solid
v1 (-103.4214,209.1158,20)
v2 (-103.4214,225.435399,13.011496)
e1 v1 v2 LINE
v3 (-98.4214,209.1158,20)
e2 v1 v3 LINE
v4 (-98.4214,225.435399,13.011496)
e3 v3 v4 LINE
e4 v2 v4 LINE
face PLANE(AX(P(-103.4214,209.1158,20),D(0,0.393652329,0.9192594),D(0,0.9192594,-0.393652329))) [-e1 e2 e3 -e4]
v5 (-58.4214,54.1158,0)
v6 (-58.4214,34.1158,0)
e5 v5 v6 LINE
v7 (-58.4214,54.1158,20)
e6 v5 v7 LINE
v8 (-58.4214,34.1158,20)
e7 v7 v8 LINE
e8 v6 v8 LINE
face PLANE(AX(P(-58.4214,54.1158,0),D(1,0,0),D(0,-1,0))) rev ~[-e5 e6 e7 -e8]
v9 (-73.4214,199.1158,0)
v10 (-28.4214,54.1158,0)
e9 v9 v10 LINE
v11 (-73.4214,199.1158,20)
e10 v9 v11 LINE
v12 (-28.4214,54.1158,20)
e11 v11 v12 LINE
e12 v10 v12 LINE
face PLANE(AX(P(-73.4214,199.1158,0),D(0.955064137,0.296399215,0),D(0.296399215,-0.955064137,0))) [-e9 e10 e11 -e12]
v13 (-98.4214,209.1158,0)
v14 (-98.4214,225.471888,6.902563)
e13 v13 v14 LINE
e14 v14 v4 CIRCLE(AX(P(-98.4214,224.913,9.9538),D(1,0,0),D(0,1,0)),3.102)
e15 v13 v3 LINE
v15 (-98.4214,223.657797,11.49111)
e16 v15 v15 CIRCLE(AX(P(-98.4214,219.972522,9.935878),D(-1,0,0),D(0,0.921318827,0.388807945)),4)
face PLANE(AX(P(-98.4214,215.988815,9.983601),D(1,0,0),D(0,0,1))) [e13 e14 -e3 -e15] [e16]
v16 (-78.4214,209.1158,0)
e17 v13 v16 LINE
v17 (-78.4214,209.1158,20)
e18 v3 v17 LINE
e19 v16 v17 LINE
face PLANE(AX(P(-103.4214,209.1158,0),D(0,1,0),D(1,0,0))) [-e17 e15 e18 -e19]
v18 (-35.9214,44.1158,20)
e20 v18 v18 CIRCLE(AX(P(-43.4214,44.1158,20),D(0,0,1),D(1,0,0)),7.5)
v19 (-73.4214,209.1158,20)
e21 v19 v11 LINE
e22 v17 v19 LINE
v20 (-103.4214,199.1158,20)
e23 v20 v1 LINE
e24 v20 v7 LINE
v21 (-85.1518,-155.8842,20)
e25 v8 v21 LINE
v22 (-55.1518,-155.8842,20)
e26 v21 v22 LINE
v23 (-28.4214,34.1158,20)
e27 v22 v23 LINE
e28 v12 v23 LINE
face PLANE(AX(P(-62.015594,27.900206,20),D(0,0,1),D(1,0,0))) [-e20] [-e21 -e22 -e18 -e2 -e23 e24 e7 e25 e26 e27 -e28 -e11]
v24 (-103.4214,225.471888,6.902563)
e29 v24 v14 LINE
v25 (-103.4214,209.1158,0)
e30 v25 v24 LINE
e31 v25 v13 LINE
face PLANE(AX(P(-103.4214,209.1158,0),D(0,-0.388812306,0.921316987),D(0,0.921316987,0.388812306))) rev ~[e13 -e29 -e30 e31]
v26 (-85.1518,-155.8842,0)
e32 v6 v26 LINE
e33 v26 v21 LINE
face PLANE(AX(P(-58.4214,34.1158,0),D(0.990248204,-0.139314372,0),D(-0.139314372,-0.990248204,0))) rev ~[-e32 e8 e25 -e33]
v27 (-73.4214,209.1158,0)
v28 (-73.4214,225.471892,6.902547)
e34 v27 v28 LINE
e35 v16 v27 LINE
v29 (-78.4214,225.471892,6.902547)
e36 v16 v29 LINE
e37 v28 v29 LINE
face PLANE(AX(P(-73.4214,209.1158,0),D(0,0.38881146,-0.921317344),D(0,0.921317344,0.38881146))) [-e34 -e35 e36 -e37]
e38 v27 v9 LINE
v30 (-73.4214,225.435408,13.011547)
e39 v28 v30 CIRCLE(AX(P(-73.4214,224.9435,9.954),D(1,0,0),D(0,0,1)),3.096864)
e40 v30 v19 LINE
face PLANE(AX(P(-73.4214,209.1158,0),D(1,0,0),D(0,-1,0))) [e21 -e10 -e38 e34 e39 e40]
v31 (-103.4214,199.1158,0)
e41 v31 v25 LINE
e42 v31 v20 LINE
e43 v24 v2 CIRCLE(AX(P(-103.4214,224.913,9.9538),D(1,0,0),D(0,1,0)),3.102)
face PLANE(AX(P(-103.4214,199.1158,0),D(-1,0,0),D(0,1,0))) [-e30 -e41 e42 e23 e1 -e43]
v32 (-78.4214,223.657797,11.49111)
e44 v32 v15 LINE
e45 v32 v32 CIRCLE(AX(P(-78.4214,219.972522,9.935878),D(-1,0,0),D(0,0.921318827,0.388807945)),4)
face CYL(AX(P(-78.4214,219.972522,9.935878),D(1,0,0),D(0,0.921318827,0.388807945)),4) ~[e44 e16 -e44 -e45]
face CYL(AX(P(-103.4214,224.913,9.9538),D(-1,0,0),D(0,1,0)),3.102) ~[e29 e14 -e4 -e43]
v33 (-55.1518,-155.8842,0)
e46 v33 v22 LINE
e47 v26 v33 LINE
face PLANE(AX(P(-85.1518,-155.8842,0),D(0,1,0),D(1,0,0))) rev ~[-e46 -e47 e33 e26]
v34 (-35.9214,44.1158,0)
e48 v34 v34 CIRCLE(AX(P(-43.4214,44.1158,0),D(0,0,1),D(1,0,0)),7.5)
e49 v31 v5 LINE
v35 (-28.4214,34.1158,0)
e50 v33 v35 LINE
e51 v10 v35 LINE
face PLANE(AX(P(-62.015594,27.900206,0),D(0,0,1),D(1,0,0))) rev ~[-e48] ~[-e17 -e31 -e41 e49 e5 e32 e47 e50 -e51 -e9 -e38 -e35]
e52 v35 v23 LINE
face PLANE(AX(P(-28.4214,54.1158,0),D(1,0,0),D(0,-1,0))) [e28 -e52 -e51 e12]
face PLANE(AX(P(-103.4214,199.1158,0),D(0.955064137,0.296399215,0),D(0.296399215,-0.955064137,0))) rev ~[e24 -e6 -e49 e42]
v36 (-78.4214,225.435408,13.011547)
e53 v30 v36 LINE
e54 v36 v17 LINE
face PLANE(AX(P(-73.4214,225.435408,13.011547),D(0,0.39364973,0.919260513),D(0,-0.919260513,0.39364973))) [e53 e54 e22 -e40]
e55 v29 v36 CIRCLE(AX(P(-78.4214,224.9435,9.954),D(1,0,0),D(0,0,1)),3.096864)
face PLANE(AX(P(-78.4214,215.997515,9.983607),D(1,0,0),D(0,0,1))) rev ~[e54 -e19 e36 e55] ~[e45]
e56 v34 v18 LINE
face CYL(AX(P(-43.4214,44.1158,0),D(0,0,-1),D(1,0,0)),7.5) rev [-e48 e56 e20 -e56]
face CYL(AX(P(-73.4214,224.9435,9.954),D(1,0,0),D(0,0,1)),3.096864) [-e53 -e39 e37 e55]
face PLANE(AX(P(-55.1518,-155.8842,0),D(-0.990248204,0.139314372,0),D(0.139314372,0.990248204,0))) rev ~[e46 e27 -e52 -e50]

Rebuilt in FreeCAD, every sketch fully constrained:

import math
import FreeCAD as App
import Part
import Sketcher

V = App.Vector
Q = App.Units.Quantity


def add_polygon(sketch, points):
    """Adds a closed chain of lines whose ends are joined by coincident constraints."""
    first, n = sketch.GeometryCount, len(points)
    for a, b in zip(points, points[1:] + points[:1]):
        sketch.addGeometry(Part.LineSegment(App.Vector(*a, 0), App.Vector(*b, 0)), False)
    for i in range(n):
        sketch.addConstraint(Sketcher.Constraint("Coincident", first + i, 2, first + (i + 1) % n, 1))

doc = App.newDocument("Part")
params = doc.addObject("Spreadsheet::Sheet", "Params")
for row, (alias, value) in enumerate([
    ("sketch1_diameter", "15 mm"),
    ("sketch1_width", "30 mm"),
    ("sketch1_height", "10 mm"),
    ("sketch1_height2", "20 mm"),
    ("pad1_length", "20 mm"),
    ("sketch2_height", "20 mm"),
    ("pad2_length", "5 mm"),
    ("sketch3_height", "20 mm"),
    ("pad3_length", "5 mm"),
    ("sketch4_diameter", "8 mm"),
    ("pad4_length", "20 mm"),
], start=1):
    params.set(f"A{row}", alias)
    params.set(f"B{row}", "=" + value)
    params.setAlias(f"B{row}", alias)

body = doc.addObject("PartDesign::Body", "Body")

# Sketch on XY plane
sketch1 = doc.addObject("Sketcher::SketchObject", "Sketch")
body.addObject(sketch1)
sketch1.AttachmentSupport = (doc.XY_Plane, [""])
sketch1.MapMode = "FlatFace"
add_polygon(sketch1, [(-103, 209), (-103, 199), (-58, 54), (-58, 34), (-85, -156), (-55, -156), (-28, 34), (-28, 54), (-73, 199), (-73, 209)])  # lines 0-9
sketch1.addGeometry(Part.Circle(V(-43, 44, 0), V(0, 0, 1), 8), False)  # 10
sketch1.addConstraint([
    Sketcher.Constraint("Vertical", 0),
    Sketcher.Constraint("Vertical", 2),
    Sketcher.Constraint("Horizontal", 4),
    Sketcher.Constraint("Vertical", 6),
    Sketcher.Constraint("Vertical", 8),
    Sketcher.Constraint("Horizontal", 9),
    Sketcher.Constraint("Parallel", 3, 5),
    Sketcher.Constraint("Parallel", 1, 7),
    Sketcher.Constraint("Horizontal", 2, 2, 5, 2),
    Sketcher.Constraint("Horizontal", 1, 2, 6, 2),
    Sketcher.Constraint("Horizontal", 0, 2, 7, 2),
    Sketcher.Constraint("Diameter", 10, Q("15 mm")),
    Sketcher.Constraint("DistanceX", 4, 1, 4, 2, Q("30 mm")),
    Sketcher.Constraint("DistanceY", 0, 2, 0, 1, Q("10 mm")),
    Sketcher.Constraint("DistanceY", 2, 2, 2, 1, Q("20 mm")),
    Sketcher.Constraint("DistanceX", 0, 2, 10, 3, Q("60 mm")),
    Sketcher.Constraint("DistanceY", 10, 3, 0, 2, Q("155 mm")),
    Sketcher.Constraint("DistanceX", 1, 2, 10, 3, Q("15 mm")),
    Sketcher.Constraint("DistanceY", 10, 3, 1, 2, Q("10 mm")),
    Sketcher.Constraint("DistanceY", 3, 2, 2, 2, Q("190 mm")),
    Sketcher.Constraint("DistanceX", 10, 3, -1, 1, Q("43.4214 mm")),
    Sketcher.Constraint("Distance", 3, Q("191.871 mm")),
    Sketcher.Constraint("DistanceY", -1, 1, 10, 3, Q("44.1158 mm")),
])
sketch1.setExpression("Constraints[21]", "Params.sketch1_diameter")
sketch1.setExpression("Constraints[22]", "Params.sketch1_width")
sketch1.setExpression("Constraints[23]", "Params.sketch1_height")
sketch1.setExpression("Constraints[24]", "Params.sketch1_height2")
pad1 = doc.addObject("PartDesign::Pad", "Pad")
body.addObject(pad1)
pad1.Profile = sketch1
pad1.setExpression("Length", "Params.pad1_length")

# Sketch on YZ plane
sketch2 = doc.addObject("Sketcher::SketchObject", "Sketch001")
body.addObject(sketch2)
sketch2.AttachmentSupport = (doc.YZ_Plane, [""])
sketch2.MapMode = "FlatFace"
sketch2.AttachmentOffset = App.Placement(V(0, 0, -73.4214), App.Rotation())
sketch2.addGeometry([
    Part.LineSegment(V(209.1, 20, 0), V(209.1, 0, 0)),
    Part.LineSegment(V(209.1, 0, 0), V(225.5, 6.9, 0)),
    Part.ArcOfCircle(Part.Circle(V(224.9, 10, 0), V(0, 0, 1), 3.1), math.radians(-80), math.radians(81)),
    Part.LineSegment(V(225.4, 13, 0), V(209.1, 20, 0)),
], False)
sketch2.addConstraint([
    Sketcher.Constraint("Coincident", 0, 2, 1, 1),
    Sketcher.Constraint("Coincident", 1, 2, 2, 1),
    Sketcher.Constraint("Coincident", 2, 2, 3, 1),
    Sketcher.Constraint("Coincident", 3, 2, 0, 1),
    Sketcher.Constraint("Vertical", 0),
    Sketcher.Constraint("PointOnObject", 0, 2, -1),
    Sketcher.Constraint("Equal", 1, 3),
    Sketcher.Constraint("DistanceY", 0, 2, 0, 1, Q("20 mm")),
    Sketcher.Constraint("Radius", 2, Q("3.097 mm")),
    Sketcher.Constraint("Angle", 1, Q("22.8804 deg")),
    Sketcher.Constraint("Distance", 1, Q("17.753 mm")),
    Sketcher.Constraint("DistanceY", -1, 1, 2, 3, Q("9.954 mm")),
    Sketcher.Constraint("DistanceX", -1, 1, 1, 2, Q("225.472 mm")),
])
sketch2.setExpression("Constraints[7]", "Params.sketch2_height")
pad2 = doc.addObject("PartDesign::Pad", "Pad001")
body.addObject(pad2)
pad2.Profile = sketch2
pad2.setExpression("Length", "Params.pad2_length")
pad2.Reversed = True

# Sketch on YZ plane
sketch3 = doc.addObject("Sketcher::SketchObject", "Sketch002")
body.addObject(sketch3)
sketch3.AttachmentSupport = (doc.YZ_Plane, [""])
sketch3.MapMode = "FlatFace"
sketch3.AttachmentOffset = App.Placement(V(0, 0, -103.4214), App.Rotation())
sketch3.addGeometry([
    Part.LineSegment(V(225.5, 6.9, 0), V(209.1, 0, 0)),
    Part.LineSegment(V(209.1, 0, 0), V(209.1, 20, 0)),
    Part.LineSegment(V(209.1, 20, 0), V(225.4, 13, 0)),
    Part.ArcOfCircle(Part.Circle(V(224.9, 10, 0), V(0, 0, 1), 3.1), math.radians(-80), math.radians(80)),
], False)
sketch3.addConstraint([
    Sketcher.Constraint("Coincident", 0, 2, 1, 1),
    Sketcher.Constraint("Coincident", 1, 2, 2, 1),
    Sketcher.Constraint("Coincident", 2, 2, 3, 2),
    Sketcher.Constraint("Coincident", 3, 1, 0, 1),
    Sketcher.Constraint("Vertical", 1),
    Sketcher.Constraint("PointOnObject", 0, 2, -1),
    Sketcher.Constraint("Equal", 0, 2),
    Sketcher.Constraint("DistanceY", 1, 1, 1, 2, Q("20 mm")),
    Sketcher.Constraint("Radius", 3, Q("3.102 mm")),
    Sketcher.Constraint("Angle", 0, Q("-157.1196 deg")),
    Sketcher.Constraint("Distance", 0, Q("17.753 mm")),
    Sketcher.Constraint("DistanceX", -1, 1, 3, 3, Q("224.913 mm")),
    Sketcher.Constraint("DistanceX", -1, 1, 3, 1, Q("225.472 mm")),
])
sketch3.setExpression("Constraints[7]", "Params.sketch3_height")
pad3 = doc.addObject("PartDesign::Pad", "Pad002")
body.addObject(pad3)
pad3.Profile = sketch3
pad3.setExpression("Length", "Params.pad3_length")

# Sketch on YZ plane
sketch4 = doc.addObject("Sketcher::SketchObject", "Sketch003")
body.addObject(sketch4)
sketch4.AttachmentSupport = (doc.YZ_Plane, [""])
sketch4.MapMode = "FlatFace"
sketch4.AttachmentOffset = App.Placement(V(0, 0, -78.4214), App.Rotation())
sketch4.addGeometry(Part.Circle(V(220, 9.9, 0), V(0, 0, 1), 4), False)
sketch4.addConstraint([
    Sketcher.Constraint("Diameter", 0, Q("8 mm")),
    Sketcher.Constraint("DistanceX", -1, 1, 0, 3, Q("219.9725 mm")),
    Sketcher.Constraint("DistanceY", -1, 1, 0, 3, Q("9.9359 mm")),
])
sketch4.setExpression("Constraints[0]", "Params.sketch4_diameter")
pad4 = doc.addObject("PartDesign::Pad", "Pad003")
body.addObject(pad4)
pad4.Profile = sketch4
pad4.setExpression("Length", "Params.pad4_length")
pad4.Reversed = True

doc.recompute()
